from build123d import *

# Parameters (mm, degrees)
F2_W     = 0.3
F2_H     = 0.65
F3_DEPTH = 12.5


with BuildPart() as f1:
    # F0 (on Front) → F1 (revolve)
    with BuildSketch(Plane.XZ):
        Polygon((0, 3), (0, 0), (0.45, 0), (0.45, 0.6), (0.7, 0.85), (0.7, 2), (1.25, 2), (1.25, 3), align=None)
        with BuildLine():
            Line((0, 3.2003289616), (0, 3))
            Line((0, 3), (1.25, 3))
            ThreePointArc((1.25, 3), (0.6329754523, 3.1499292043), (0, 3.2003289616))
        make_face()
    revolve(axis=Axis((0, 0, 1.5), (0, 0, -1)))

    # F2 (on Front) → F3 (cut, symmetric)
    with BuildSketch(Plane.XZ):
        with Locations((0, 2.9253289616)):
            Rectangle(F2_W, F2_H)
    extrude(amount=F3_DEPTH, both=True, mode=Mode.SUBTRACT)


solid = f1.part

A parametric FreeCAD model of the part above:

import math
import FreeCAD as App
import Part
import Sketcher
Q = App.Units.Quantity

doc = App.newDocument("Part")
params = doc.addObject("Spreadsheet::Sheet", "Params")
for row, (alias, value) in enumerate([
    ("sketch1_radius", "4 mm"),
    ("sketch1_height", "1 mm"),
    ("sketch1_height2", "0.6 mm"),
    ("sketch1_width", "0.45 mm"),
    ("sketch1_width2", "0.55 mm"),
    ("revolution_angle", "360 deg"),
    ("sketch2_width", "0.3 mm"),
    ("sketch2_height", "0.65 mm"),
    ("pocket1_length", "25 mm"),
], start=1):
    params.set(f"A{row}", alias)
    params.set(f"B{row}", "=" + value)
    params.setAlias(f"B{row}", alias)

body = doc.addObject("PartDesign::Body", "Body")

sketch1 = body.newObject("Sketcher::SketchObject", "Sketch")
sketch1.AttachmentSupport = (doc.getObject("XZ_Plane"), [""])
sketch1.MapMode = "FlatFace"
sketch1.addGeometry([
    Part.LineSegment(App.Vector(0, 0, 0), App.Vector(0.45, 0, 0)),
    Part.LineSegment(App.Vector(0.45, 0, 0), App.Vector(0.45, 0.6, 0)),
    Part.LineSegment(App.Vector(0.45, 0.6, 0), App.Vector(0.7, 0.85, 0)),
    Part.LineSegment(App.Vector(0.7, 0.85, 0), App.Vector(0.7, 2, 0)),
    Part.LineSegment(App.Vector(0.7, 2, 0), App.Vector(1.25, 2, 0)),
    Part.LineSegment(App.Vector(1.25, 2, 0), App.Vector(1.25, 3, 0)),
    Part.ArcOfCircle(Part.Circle(App.Vector(0, -0.8, 0), App.Vector(0, 0, 1), 4), math.radians(71.79), math.radians(90)),
    Part.LineSegment(App.Vector(0, 3.2, 0), App.Vector(0, 0, 0)),
], False)
sketch1.addConstraint([
    Sketcher.Constraint("Coincident", 0, 2, 1, 1),
    Sketcher.Constraint("Coincident", 1, 2, 2, 1),
    Sketcher.Constraint("Coincident", 2, 2, 3, 1),
    Sketcher.Constraint("Coincident", 3, 2, 4, 1),
    Sketcher.Constraint("Coincident", 4, 2, 5, 1),
    Sketcher.Constraint("Coincident", 5, 2, 6, 1),
    Sketcher.Constraint("Coincident", 6, 2, 7, 1),
    Sketcher.Constraint("Coincident", 7, 2, 0, 1),
    Sketcher.Constraint("Horizontal", 0),
    Sketcher.Constraint("Vertical", 1),
    Sketcher.Constraint("Vertical", 3),
    Sketcher.Constraint("Horizontal", 4),
    Sketcher.Constraint("Vertical", 5),
    Sketcher.Constraint("Vertical", 7),
    Sketcher.Constraint("Coincident", 7, 2, -1, 1),
    Sketcher.Constraint("PointOnObject", 6, 3, -2),
    Sketcher.Constraint("Radius", 6, Q("4 mm")),
    Sketcher.Constraint("DistanceY", 5, 1, 5, 2, Q("1 mm")),
    Sketcher.Constraint("Angle", 2, Q("45 deg")),
    Sketcher.Constraint("DistanceY", 1, 1, 1, 2, Q("0.6 mm")),
    Sketcher.Constraint("DistanceY", -1, 1, 3, 2, Q("2 mm")),
    Sketcher.Constraint("DistanceX", 0, 1, 0, 2, Q("0.45 mm")),
    Sketcher.Constraint("DistanceX", 4, 1, 4, 2, Q("0.55 mm")),
    Sketcher.Constraint("DistanceY", 3, 1, 3, 2, Q("1.15 mm")),
])
sketch1.setExpression("Constraints[16]", "Params.sketch1_radius")
sketch1.setExpression("Constraints[17]", "Params.sketch1_height")
sketch1.setExpression("Constraints[19]", "Params.sketch1_height2")
sketch1.setExpression("Constraints[21]", "Params.sketch1_width")
sketch1.setExpression("Constraints[22]", "Params.sketch1_width2")
revolution = body.newObject("PartDesign::Revolution", "Revolution")
revolution.Profile = sketch1
revolution.ReferenceAxis = (sketch1, ["V_Axis"])
revolution.setExpression("Angle", "Params.revolution_angle")

sketch2 = body.newObject("Sketcher::SketchObject", "Sketch001")
sketch2.AttachmentSupport = (doc.getObject("XZ_Plane"), [""])
sketch2.MapMode = "FlatFace"
sketch2.addGeometry([
    Part.LineSegment(App.Vector(-0.15, 3.25, 0), App.Vector(-0.15, 2.6, 0)),
    Part.LineSegment(App.Vector(-0.15, 2.6, 0), App.Vector(0.15, 2.6, 0)),
    Part.LineSegment(App.Vector(0.15, 2.6, 0), App.Vector(0.15, 3.25, 0)),
    Part.LineSegment(App.Vector(0.15, 3.25, 0), App.Vector(-0.15, 3.25, 0)),
], False)
sketch2.addConstraint([
    Sketcher.Constraint("Coincident", 0, 2, 1, 1),
    Sketcher.Constraint("Coincident", 1, 2, 2, 1),
    Sketcher.Constraint("Coincident", 2, 2, 3, 1),
    Sketcher.Constraint("Coincident", 3, 2, 0, 1),
    Sketcher.Constraint("Vertical", 0),
    Sketcher.Constraint("Horizontal", 1),
    Sketcher.Constraint("Vertical", 2),
    Sketcher.Constraint("Horizontal", 3),
    Sketcher.Constraint("DistanceX", 1, 1, 1, 2, Q("0.3 mm")),
    Sketcher.Constraint("DistanceY", 0, 2, 0, 1, Q("0.65 mm")),
    Sketcher.Constraint("DistanceX", 0, 2, -1, 1, Q("0.15 mm")),
    Sketcher.Constraint("DistanceY", -1, 1, 0, 2, Q("2.600329 mm")),
])
sketch2.setExpression("Constraints[8]", "Params.sketch2_width")
sketch2.setExpression("Constraints[9]", "Params.sketch2_height")
pocket1 = body.newObject("PartDesign::Pocket", "Pocket")
pocket1.Profile = sketch2
pocket1.setExpression("Length", "Params.pocket1_length")
pocket1.Midplane = True

doc.recompute()
